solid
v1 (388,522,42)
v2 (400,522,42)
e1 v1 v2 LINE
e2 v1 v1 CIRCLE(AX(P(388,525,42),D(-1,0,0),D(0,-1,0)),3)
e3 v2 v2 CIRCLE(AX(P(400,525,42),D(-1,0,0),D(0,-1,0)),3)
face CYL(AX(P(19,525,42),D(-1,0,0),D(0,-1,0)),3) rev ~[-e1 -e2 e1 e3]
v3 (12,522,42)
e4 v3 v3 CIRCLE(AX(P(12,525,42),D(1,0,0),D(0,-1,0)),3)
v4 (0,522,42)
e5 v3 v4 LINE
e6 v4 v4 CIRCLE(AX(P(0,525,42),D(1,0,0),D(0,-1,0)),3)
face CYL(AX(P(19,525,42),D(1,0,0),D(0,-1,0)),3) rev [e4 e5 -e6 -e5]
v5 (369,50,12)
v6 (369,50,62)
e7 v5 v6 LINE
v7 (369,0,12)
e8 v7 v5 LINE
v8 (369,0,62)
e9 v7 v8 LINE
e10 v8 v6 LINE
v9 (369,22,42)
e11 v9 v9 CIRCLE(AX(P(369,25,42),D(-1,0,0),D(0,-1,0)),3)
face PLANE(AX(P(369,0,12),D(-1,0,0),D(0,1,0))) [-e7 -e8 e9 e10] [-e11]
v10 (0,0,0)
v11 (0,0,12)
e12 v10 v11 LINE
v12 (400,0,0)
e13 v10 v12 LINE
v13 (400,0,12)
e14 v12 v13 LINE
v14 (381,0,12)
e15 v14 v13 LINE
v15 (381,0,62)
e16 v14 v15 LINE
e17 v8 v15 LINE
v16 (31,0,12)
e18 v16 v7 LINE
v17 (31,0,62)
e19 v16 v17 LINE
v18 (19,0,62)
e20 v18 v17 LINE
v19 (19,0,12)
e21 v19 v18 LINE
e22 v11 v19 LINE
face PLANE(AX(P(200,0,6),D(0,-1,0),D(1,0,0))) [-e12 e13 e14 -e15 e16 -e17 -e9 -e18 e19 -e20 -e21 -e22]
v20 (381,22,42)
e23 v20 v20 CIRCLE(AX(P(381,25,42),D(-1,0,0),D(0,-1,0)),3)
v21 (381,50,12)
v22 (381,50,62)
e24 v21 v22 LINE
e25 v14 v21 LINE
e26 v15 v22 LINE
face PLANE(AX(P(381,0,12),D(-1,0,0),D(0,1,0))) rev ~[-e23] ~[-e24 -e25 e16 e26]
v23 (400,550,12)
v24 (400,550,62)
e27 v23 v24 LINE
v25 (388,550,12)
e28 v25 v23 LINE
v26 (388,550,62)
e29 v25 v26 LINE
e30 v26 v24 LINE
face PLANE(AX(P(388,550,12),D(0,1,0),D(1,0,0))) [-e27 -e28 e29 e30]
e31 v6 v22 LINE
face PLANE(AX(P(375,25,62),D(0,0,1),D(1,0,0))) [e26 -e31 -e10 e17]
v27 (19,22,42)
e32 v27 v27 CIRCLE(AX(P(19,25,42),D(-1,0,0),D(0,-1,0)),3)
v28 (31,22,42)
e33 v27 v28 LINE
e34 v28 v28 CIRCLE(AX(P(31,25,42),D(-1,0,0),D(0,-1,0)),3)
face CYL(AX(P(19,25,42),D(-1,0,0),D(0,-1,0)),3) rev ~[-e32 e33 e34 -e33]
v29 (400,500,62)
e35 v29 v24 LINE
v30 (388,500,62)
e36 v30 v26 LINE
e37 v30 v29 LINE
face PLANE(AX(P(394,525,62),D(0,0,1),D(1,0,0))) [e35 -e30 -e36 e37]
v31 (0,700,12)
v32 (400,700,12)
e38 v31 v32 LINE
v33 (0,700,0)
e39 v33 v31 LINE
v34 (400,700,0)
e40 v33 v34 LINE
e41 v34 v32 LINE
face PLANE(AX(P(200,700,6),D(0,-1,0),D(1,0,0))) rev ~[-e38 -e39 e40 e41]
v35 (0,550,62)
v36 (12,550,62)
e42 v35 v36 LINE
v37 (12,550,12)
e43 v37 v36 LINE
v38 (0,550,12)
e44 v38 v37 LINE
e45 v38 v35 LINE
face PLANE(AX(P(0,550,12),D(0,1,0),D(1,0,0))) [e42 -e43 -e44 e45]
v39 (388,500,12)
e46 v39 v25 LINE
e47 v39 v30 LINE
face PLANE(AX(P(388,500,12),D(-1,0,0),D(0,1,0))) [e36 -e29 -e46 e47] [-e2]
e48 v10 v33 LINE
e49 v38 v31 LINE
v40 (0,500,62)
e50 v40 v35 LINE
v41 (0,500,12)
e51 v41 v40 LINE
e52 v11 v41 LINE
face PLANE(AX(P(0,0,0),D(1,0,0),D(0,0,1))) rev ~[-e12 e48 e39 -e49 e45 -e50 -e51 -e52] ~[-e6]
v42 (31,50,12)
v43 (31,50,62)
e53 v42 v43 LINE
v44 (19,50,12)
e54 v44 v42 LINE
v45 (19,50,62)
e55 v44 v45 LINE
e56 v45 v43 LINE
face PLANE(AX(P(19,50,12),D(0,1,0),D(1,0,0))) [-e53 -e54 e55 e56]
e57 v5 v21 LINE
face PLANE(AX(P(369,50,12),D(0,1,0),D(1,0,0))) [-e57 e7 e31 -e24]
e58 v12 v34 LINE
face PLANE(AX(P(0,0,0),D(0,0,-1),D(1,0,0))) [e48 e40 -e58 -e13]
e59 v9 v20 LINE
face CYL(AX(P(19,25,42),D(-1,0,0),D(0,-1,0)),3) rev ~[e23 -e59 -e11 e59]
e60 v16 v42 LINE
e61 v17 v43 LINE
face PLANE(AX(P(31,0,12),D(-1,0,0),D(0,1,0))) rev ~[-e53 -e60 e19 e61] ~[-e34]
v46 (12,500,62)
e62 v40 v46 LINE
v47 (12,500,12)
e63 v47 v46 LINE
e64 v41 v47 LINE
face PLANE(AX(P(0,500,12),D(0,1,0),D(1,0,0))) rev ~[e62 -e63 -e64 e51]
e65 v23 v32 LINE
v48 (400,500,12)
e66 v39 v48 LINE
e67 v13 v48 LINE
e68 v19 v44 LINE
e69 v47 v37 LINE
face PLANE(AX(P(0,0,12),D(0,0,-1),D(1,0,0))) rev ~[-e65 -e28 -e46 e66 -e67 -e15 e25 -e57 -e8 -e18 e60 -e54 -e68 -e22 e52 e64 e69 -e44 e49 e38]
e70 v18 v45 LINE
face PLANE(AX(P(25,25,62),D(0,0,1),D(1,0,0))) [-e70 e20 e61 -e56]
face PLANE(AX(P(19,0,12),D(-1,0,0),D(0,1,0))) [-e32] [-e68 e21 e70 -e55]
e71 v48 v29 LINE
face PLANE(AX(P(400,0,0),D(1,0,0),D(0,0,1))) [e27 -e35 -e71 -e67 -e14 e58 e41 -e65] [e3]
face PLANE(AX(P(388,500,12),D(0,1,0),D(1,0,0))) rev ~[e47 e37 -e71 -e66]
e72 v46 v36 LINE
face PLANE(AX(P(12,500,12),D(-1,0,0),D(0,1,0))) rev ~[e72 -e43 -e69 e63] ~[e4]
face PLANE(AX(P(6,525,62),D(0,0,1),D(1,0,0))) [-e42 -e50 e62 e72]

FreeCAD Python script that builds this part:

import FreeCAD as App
import Part
import Sketcher
from FreeCAD import Vector
Q = App.Units.Quantity

doc = App.newDocument("Part")
body = doc.addObject("PartDesign::Body", "Body")

# Sketch on XZ plane
sketch1 = body.newObject("Sketcher::SketchObject", "Sketch")
sketch1.AttachmentSupport = (doc.getObject("XZ_Plane"), [""])
sketch1.MapMode = "FlatFace"
sketch1.addGeometry([
    Part.LineSegment(Vector(0, 12, 0), Vector(0, 0, 0)),
    Part.LineSegment(Vector(0, 0, 0), Vector(400, 0, 0)),
    Part.LineSegment(Vector(400, 0, 0), Vector(400, 12, 0)),
    Part.LineSegment(Vector(400, 12, 0), Vector(0, 12, 0)),
], False)
sketch1.addConstraint([
    Sketcher.Constraint("Coincident", 0, 2, 1, 1),
    Sketcher.Constraint("Coincident", 1, 2, 2, 1),
    Sketcher.Constraint("Coincident", 2, 2, 3, 1),
    Sketcher.Constraint("Coincident", 3, 2, 0, 1),
    Sketcher.Constraint("Vertical", 0),
    Sketcher.Constraint("Horizontal", 1),
    Sketcher.Constraint("Vertical", 2),
    Sketcher.Constraint("Horizontal", 3),
    Sketcher.Constraint("Coincident", 0, 2, -1, 1),
    Sketcher.Constraint("DistanceX", 1, 1, 1, 2, Q("400 mm")),
    Sketcher.Constraint("DistanceY", 0, 2, 0, 1, Q("12 mm")),
])
pad1 = body.newObject("PartDesign::Pad", "Pad")
pad1.Profile = sketch1
pad1.Length = 700
pad1.Reversed = True

# Sketch on XY plane
sketch2 = body.newObject("Sketcher::SketchObject", "Sketch001")
sketch2.AttachmentSupport = (doc.getObject("XY_Plane"), [""])
sketch2.MapMode = "FlatFace"
sketch2.AttachmentOffset = App.Placement(Vector(0, 0, 12), App.Rotation())
sketch2.addGeometry([
    Part.LineSegment(Vector(19, 50, 0), Vector(19, 0, 0)),  # 0
    Part.LineSegment(Vector(19, 0, 0), Vector(31, 0, 0)),  # 1
    Part.LineSegment(Vector(31, 0, 0), Vector(31, 50, 0)),  # 2
    Part.LineSegment(Vector(31, 50, 0), Vector(19, 50, 0)),  # 3
    Part.LineSegment(Vector(369, 50, 0), Vector(369, 0, 0)),  # 4
    Part.LineSegment(Vector(369, 0, 0), Vector(381, 0, 0)),  # 5
    Part.LineSegment(Vector(381, 0, 0), Vector(381, 50, 0)),  # 6
    Part.LineSegment(Vector(381, 50, 0), Vector(369, 50, 0)),  # 7
    Part.LineSegment(Vector(0, 550, 0), Vector(0, 500, 0)),  # 8
    Part.LineSegment(Vector(0, 500, 0), Vector(12, 500, 0)),  # 9
    Part.LineSegment(Vector(12, 500, 0), Vector(12, 550, 0)),  # 10
    Part.LineSegment(Vector(12, 550, 0), Vector(0, 550, 0)),  # 11
    Part.LineSegment(Vector(388, 550, 0), Vector(388, 500, 0)),  # 12
    Part.LineSegment(Vector(388, 500, 0), Vector(400, 500, 0)),  # 13
    Part.LineSegment(Vector(400, 500, 0), Vector(400, 550, 0)),  # 14
    Part.LineSegment(Vector(400, 550, 0), Vector(388, 550, 0)),  # 15
], False)
sketch2.addConstraint([
    Sketcher.Constraint("Coincident", 0, 2, 1, 1),
    Sketcher.Constraint("Coincident", 1, 2, 2, 1),
    Sketcher.Constraint("Coincident", 2, 2, 3, 1),
    Sketcher.Constraint("Coincident", 3, 2, 0, 1),
    Sketcher.Constraint("Coincident", 4, 2, 5, 1),
    Sketcher.Constraint("Coincident", 5, 2, 6, 1),
    Sketcher.Constraint("Coincident", 6, 2, 7, 1),
    Sketcher.Constraint("Coincident", 7, 2, 4, 1),
    Sketcher.Constraint("Coincident", 8, 2, 9, 1),
    Sketcher.Constraint("Coincident", 9, 2, 10, 1),
    Sketcher.Constraint("Coincident", 10, 2, 11, 1),
    Sketcher.Constraint("Coincident", 11, 2, 8, 1),
    Sketcher.Constraint("Coincident", 12, 2, 13, 1),
    Sketcher.Constraint("Coincident", 13, 2, 14, 1),
    Sketcher.Constraint("Coincident", 14, 2, 15, 1),
    Sketcher.Constraint("Coincident", 15, 2, 12, 1),
    Sketcher.Constraint("Vertical", 0),
    Sketcher.Constraint("Horizontal", 1),
    Sketcher.Constraint("Vertical", 2),
    Sketcher.Constraint("Horizontal", 3),
    Sketcher.Constraint("Vertical", 4),
    Sketcher.Constraint("Horizontal", 5),
    Sketcher.Constraint("Vertical", 6),
    Sketcher.Constraint("Horizontal", 7),
    Sketcher.Constraint("Vertical", 8),
    Sketcher.Constraint("Horizontal", 9),
    Sketcher.Constraint("Vertical", 10),
    Sketcher.Constraint("Horizontal", 11),
    Sketcher.Constraint("Vertical", 12),
    Sketcher.Constraint("Horizontal", 13),
    Sketcher.Constraint("Vertical", 14),
    Sketcher.Constraint("Horizontal", 15),
    Sketcher.Constraint("PointOnObject", 0, 2, -1),
    Sketcher.Constraint("PointOnObject", 4, 2, -1),
    Sketcher.Constraint("PointOnObject", 8, 2, -2),
    Sketcher.Constraint("Horizontal", 3, 2, 6, 2),
    Sketcher.Constraint("Horizontal", 9, 2, 12, 2),
    Sketcher.Constraint("Horizontal", 11, 2, 14, 2),
    Sketcher.Constraint("Equal", 3, 5),
    Sketcher.Constraint("Equal", 7, 9),
    Sketcher.Constraint("Equal", 11, 13),
    Sketcher.Constraint("Equal", 6, 8),
    Sketcher.Constraint("DistanceX", 1, 1, 1, 2, Q("12 mm")),
    Sketcher.Constraint("DistanceY", 0, 2, 0, 1, Q("50 mm")),
    Sketcher.Constraint("DistanceX", -1, 1, 0, 2, Q("19 mm")),
    Sketcher.Constraint("DistanceX", -1, 1, 4, 2, Q("369 mm")),
    Sketcher.Constraint("DistanceY", -1, 1, 8, 2, Q("500 mm")),
    Sketcher.Constraint("DistanceX", -1, 1, 12, 2, Q("388 mm")),
])
pad2 = body.newObject("PartDesign::Pad", "Pad001")
pad2.Profile = sketch2
pad2.Length = 50

# Sketch on YZ plane
sketch3 = body.newObject("Sketcher::SketchObject", "Sketch002")
sketch3.AttachmentSupport = (doc.getObject("YZ_Plane"), [""])
sketch3.MapMode = "FlatFace"
sketch3.AttachmentOffset = App.Placement(Vector(0, 0, 19), App.Rotation())
sketch3.addGeometry([
    Part.Circle(Vector(25, 42, 0), Vector(0, 0, 1), 3),
    Part.Circle(Vector(525, 42, 0), Vector(0, 0, 1), 3),
], False)
sketch3.addConstraint([
    Sketcher.Constraint("Equal", 0, 1),
    Sketcher.Constraint("Horizontal", 0, 3, 1, 3),
    Sketcher.Constraint("Diameter", 0, Q("6 mm")),
    Sketcher.Constraint("DistanceX", -1, 1, 0, 3, Q("25 mm")),
    Sketcher.Constraint("DistanceY", -1, 1, 0, 3, Q("42 mm")),
    Sketcher.Constraint("DistanceX", -1, 1, 1, 3, Q("525 mm")),
])
pocket1 = body.newObject("PartDesign::Pocket", "Pocket")
pocket1.Profile = sketch3
pocket1.Type = "ThroughAll"
pocket1.Midplane = True

doc.recompute()
